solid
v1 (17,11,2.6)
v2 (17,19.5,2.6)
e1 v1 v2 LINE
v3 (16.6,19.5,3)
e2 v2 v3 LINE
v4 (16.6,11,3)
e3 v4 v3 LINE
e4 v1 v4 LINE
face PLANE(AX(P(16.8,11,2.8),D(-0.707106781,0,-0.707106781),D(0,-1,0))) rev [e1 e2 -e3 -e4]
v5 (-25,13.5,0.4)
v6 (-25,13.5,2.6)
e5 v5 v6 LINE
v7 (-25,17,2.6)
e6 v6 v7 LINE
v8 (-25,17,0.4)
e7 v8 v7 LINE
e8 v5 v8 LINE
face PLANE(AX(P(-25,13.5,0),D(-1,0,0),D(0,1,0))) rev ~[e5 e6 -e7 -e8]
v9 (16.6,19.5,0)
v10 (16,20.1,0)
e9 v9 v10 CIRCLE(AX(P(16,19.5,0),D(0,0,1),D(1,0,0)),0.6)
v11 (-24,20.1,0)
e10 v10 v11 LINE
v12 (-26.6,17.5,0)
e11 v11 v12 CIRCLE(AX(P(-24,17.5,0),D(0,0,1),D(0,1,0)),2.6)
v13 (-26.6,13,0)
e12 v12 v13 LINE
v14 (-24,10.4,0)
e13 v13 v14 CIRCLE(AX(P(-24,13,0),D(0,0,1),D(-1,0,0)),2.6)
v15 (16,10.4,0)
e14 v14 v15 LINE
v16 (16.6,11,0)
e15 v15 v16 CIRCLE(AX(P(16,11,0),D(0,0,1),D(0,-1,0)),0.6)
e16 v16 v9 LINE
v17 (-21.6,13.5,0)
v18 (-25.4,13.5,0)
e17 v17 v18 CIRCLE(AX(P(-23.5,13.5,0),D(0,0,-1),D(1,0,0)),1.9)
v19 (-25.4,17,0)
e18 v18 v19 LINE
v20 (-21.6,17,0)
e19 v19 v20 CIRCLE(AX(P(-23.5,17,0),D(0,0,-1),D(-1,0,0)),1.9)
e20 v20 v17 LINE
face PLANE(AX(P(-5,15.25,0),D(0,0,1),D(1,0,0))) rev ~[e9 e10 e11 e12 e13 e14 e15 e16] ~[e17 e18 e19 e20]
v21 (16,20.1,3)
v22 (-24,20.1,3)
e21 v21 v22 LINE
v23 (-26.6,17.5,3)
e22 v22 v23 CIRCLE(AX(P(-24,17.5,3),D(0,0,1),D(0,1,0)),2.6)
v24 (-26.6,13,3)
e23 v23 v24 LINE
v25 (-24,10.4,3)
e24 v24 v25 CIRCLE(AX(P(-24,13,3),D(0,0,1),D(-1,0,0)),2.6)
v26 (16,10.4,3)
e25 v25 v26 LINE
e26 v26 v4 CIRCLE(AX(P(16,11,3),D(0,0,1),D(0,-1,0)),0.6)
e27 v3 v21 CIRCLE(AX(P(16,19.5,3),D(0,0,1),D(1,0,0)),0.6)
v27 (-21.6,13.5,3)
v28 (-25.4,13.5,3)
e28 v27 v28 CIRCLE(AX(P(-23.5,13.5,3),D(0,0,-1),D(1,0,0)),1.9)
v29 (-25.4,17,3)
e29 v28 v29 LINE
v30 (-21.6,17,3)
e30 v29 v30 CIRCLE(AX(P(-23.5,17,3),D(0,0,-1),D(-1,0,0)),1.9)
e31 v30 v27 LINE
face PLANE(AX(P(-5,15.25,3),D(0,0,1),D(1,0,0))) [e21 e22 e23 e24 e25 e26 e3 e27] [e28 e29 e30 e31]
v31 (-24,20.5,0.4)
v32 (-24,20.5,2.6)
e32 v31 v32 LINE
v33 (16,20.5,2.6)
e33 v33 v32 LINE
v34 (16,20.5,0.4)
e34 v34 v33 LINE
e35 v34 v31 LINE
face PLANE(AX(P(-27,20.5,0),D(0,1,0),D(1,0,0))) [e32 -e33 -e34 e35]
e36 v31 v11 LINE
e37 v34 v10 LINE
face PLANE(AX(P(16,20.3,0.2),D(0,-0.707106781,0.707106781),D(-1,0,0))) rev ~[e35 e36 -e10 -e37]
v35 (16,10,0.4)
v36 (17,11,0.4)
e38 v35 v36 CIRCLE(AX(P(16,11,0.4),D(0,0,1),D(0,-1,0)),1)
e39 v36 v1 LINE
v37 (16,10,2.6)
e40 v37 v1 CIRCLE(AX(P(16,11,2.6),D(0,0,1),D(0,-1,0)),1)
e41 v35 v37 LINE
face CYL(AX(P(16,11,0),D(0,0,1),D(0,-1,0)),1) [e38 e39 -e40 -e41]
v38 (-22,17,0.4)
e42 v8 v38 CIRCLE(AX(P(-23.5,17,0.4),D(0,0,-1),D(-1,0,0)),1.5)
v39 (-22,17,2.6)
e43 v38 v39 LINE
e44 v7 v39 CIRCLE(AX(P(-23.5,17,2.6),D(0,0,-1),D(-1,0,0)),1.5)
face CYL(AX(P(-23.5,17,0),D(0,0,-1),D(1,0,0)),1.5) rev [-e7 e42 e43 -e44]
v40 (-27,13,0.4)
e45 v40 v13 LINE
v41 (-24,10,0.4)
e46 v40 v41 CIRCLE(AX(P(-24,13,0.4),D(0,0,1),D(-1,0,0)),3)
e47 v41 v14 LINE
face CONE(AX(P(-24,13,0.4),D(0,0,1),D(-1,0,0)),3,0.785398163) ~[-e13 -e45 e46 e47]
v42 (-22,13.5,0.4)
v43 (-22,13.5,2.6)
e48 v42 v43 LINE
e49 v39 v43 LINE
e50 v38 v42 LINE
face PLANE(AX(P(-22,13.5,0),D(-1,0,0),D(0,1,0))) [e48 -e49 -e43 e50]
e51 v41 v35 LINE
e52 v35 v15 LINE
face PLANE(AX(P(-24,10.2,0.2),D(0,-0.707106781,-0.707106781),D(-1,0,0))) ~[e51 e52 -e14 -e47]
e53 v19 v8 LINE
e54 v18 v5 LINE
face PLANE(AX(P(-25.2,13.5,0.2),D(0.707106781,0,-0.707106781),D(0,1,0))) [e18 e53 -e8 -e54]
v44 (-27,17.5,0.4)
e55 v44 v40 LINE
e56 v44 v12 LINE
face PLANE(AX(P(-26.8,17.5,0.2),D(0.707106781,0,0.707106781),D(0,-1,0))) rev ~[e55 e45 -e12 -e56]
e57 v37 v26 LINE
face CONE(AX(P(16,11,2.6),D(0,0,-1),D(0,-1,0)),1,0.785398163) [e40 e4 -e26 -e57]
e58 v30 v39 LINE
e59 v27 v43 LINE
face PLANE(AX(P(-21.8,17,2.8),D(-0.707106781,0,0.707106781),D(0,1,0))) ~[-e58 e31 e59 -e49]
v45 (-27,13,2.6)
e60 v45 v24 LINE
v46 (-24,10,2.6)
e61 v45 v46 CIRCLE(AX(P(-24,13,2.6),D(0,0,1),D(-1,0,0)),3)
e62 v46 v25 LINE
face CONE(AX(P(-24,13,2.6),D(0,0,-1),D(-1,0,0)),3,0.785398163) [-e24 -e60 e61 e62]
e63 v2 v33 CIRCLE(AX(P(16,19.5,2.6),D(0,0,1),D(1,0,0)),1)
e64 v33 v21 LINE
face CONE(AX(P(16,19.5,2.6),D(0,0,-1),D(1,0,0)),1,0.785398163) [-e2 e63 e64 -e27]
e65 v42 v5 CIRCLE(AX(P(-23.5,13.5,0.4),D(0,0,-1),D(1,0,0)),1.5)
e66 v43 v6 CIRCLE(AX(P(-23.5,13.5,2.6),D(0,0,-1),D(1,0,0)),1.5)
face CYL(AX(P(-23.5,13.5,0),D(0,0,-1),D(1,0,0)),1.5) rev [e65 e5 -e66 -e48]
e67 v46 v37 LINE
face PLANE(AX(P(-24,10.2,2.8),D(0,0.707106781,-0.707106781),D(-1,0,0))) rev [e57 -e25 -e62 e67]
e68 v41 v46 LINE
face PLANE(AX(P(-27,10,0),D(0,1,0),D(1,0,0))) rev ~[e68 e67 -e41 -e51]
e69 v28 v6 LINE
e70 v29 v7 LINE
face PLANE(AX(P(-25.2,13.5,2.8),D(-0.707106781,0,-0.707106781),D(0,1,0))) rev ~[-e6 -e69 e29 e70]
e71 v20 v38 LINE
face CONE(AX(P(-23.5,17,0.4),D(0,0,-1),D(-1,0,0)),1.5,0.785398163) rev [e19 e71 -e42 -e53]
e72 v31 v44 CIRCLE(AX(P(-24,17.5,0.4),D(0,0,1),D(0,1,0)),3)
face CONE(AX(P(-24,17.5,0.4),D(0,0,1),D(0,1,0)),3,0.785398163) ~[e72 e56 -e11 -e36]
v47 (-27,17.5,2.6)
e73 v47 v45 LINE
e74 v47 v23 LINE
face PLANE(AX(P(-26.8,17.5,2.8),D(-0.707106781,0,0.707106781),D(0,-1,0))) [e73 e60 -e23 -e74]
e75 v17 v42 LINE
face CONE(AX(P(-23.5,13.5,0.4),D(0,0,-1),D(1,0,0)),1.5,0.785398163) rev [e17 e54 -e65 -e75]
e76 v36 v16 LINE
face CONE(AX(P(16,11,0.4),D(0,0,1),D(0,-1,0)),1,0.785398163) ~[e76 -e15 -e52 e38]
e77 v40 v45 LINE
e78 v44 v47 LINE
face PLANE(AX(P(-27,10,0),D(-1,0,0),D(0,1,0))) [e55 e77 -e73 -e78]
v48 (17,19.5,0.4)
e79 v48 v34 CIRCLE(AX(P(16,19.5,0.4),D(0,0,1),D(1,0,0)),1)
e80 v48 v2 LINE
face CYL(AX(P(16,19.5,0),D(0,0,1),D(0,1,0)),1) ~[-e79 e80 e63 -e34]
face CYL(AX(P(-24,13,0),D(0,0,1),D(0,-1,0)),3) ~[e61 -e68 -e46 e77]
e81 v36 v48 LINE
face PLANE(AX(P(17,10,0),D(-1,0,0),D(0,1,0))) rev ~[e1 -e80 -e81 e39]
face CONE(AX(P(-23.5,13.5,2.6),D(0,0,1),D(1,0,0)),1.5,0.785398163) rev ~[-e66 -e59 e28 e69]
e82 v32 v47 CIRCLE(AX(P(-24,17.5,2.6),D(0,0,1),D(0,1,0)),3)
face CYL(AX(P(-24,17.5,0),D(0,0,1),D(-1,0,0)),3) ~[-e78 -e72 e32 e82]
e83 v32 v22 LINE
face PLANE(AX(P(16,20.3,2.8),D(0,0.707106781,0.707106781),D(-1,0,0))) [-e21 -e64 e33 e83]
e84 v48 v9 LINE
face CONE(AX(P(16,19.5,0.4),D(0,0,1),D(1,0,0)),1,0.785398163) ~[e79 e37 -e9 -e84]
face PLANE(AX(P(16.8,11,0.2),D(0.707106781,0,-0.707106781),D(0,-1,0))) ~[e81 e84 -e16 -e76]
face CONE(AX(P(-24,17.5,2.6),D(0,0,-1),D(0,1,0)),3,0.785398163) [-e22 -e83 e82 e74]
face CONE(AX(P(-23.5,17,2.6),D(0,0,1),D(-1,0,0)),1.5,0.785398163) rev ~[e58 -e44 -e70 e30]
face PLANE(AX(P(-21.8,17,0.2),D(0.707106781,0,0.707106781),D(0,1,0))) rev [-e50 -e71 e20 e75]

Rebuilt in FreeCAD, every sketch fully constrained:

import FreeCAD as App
import Part
import Sketcher

V = App.Vector


def edges_at(feature, points):
    """Names of the edges that pass closest to the given points."""
    edges = feature.Shape.Edges
    near = lambda p: min(range(len(edges)), key=lambda i: edges[i].distToShape(Part.Vertex(*p))[0])
    return sorted({f"Edge{near(p) + 1}" for p in points})


def add_polygon(sketch, points):
    """Adds a closed chain of lines whose ends are joined by coincident constraints."""
    first, n = sketch.GeometryCount, len(points)
    for a, b in zip(points, points[1:] + points[:1]):
        sketch.addGeometry(Part.LineSegment(App.Vector(*a, 0), App.Vector(*b, 0)), False)
    for i in range(n):
        sketch.addConstraint(Sketcher.Constraint("Coincident", first + i, 2, first + (i + 1) % n, 1))

doc = App.newDocument("Part")
params = doc.addObject("Spreadsheet::Sheet", "Params")
for row, (alias, value) in enumerate([
    ("sketch1_width", "3 mm"),
    ("sketch1_height", "3.5 mm"),
    ("pad1_length", "10 mm"),
    ("sketch2_diameter", "3 mm"),
    ("pad2_length", "10 mm"),
    ("sketch3_diameter", "3 mm"),
    ("pad3_length", "10 mm"),
    ("sketch4_width", "44 mm"),
    ("sketch4_height", "10.5 mm"),
    ("pad4_length", "3 mm"),
    ("fillet_radius", "1 mm"),
    ("fillet2_radius", "3 mm"),
    ("chamfer_size", "0.4 mm"),
], start=1):
    params.set(f"A{row}", alias)
    params.set(f"B{row}", "=" + value)
    params.setAlias(f"B{row}", alias)

body = doc.addObject("PartDesign::Body", "Body")

sketch1 = body.newObject("Sketcher::SketchObject", "Sketch")
sketch1.AttachmentSupport = (doc.getObject("XY_Plane"), [""])
sketch1.MapMode = "FlatFace"
add_polygon(sketch1, [(-24, 17), (-24, 13.5), (-21, 13.5), (-21, 17)])
sketch1.addConstraint([
    Sketcher.Constraint("Vertical", 0),
    Sketcher.Constraint("Horizontal", 1),
    Sketcher.Constraint("Vertical", 2),
    Sketcher.Constraint("Horizontal", 3),
    Sketcher.Constraint("DistanceX", 1, 1, 1, 2, 3.0),
    Sketcher.Constraint("DistanceY", 0, 2, 0, 1, 3.5),
    Sketcher.Constraint("DistanceX", 0, 2, -1, 1, 24.0),
    Sketcher.Constraint("DistanceY", -1, 1, 2, 2, 17.0),
])
sketch1.setExpression("Constraints[8]", "Params.sketch1_width")
sketch1.setExpression("Constraints[9]", "Params.sketch1_height")
pad1 = body.newObject("PartDesign::Pad", "Pad")
pad1.Profile = sketch1
pad1.setExpression("Length", "Params.pad1_length")
body2 = doc.addObject("PartDesign::Body", "Body001")

sketch2 = body2.newObject("Sketcher::SketchObject", "Sketch001")
sketch2.AttachmentSupport = (doc.getObject("XY_Plane001"), [""])
sketch2.MapMode = "FlatFace"
sketch2.addGeometry(Part.Circle(V(-22.5, 13.5, 0), V(0, 0, 1), 1.5), False)
sketch2.addConstraint([
    Sketcher.Constraint("Diameter", 0, 3.0),
    Sketcher.Constraint("DistanceX", 0, 3, -1, 1, 22.5),
    Sketcher.Constraint("DistanceY", -1, 1, 0, 3, 13.5),
])
sketch2.setExpression("Constraints[0]", "Params.sketch2_diameter")
pad2 = body2.newObject("PartDesign::Pad", "Pad001")
pad2.Profile = sketch2
pad2.setExpression("Length", "Params.pad2_length")
body3 = doc.addObject("PartDesign::Body", "Body002")

sketch3 = body3.newObject("Sketcher::SketchObject", "Sketch002")
sketch3.AttachmentSupport = (doc.getObject("XY_Plane002"), [""])
sketch3.MapMode = "FlatFace"
sketch3.addGeometry(Part.Circle(V(-22.5, 17, 0), V(0, 0, 1), 1.5), False)
sketch3.addConstraint([
    Sketcher.Constraint("Diameter", 0, 3.0),
    Sketcher.Constraint("DistanceY", -1, 1, 0, 3, 17.0),
    Sketcher.Constraint("DistanceX", 0, 3, -1, 1, 22.5),
])
sketch3.setExpression("Constraints[0]", "Params.sketch3_diameter")
pad3 = body3.newObject("PartDesign::Pad", "Pad002")
pad3.Profile = sketch3
pad3.setExpression("Length", "Params.pad3_length")
doc.recompute()

boolean = body3.newObject("PartDesign::Boolean", "Boolean")
boolean.Type = "Fuse"
boolean.addObjects([body])
doc.recompute()

boolean2 = body3.newObject("PartDesign::Boolean", "Boolean001")
boolean2.Type = "Fuse"
boolean2.addObjects([body2])
body4 = doc.addObject("PartDesign::Body", "Body003")
doc.recompute()

body3.Placement = App.Placement(V(-1, 0, 0), App.Rotation(V(0, 0, 1), 0))
boolean3 = body4.newObject("PartDesign::Boolean", "Boolean002")
boolean3.Type = "Fuse"
boolean3.addObjects([body3])
body5 = doc.addObject("PartDesign::Body", "Body004")

sketch4 = body5.newObject("Sketcher::SketchObject", "Sketch003")
sketch4.AttachmentSupport = (doc.getObject("XY_Plane004"), [""])
sketch4.MapMode = "FlatFace"
add_polygon(sketch4, [(-27, 20), (-27, 10), (17, 10), (17, 20)])
sketch4.addConstraint([
    Sketcher.Constraint("Vertical", 0),
    Sketcher.Constraint("Horizontal", 1),
    Sketcher.Constraint("Vertical", 2),
    Sketcher.Constraint("Horizontal", 3),
    Sketcher.Constraint("DistanceX", 1, 1, 1, 2, 44.0),
    Sketcher.Constraint("DistanceY", 0, 2, 0, 1, 10.5),
    Sketcher.Constraint("DistanceX", 0, 2, -1, 1, 27.0),
    Sketcher.Constraint("DistanceY", -1, 1, 0, 2, 10.0),
])
sketch4.setExpression("Constraints[8]", "Params.sketch4_width")
sketch4.setExpression("Constraints[9]", "Params.sketch4_height")
pad4 = body5.newObject("PartDesign::Pad", "Pad003")
pad4.Profile = sketch4
pad4.setExpression("Length", "Params.pad4_length")
doc.recompute()

boolean4 = body5.newObject("PartDesign::Boolean", "Boolean003")
boolean4.Type = "Cut"
boolean4.addObjects([body4])
doc.recompute()

fillet = body5.newObject("PartDesign::Fillet", "Fillet")
fillet.Base = (boolean4, edges_at(boolean4, [(17, 10, 1.5), (17, 20.5, 1.5)]))
fillet.setExpression("Radius", "Params.fillet_radius")
doc.recompute()

fillet2 = body5.newObject("PartDesign::Fillet", "Fillet001")
fillet2.Base = (fillet, edges_at(fillet, [(-27, 10, 1.5), (-27, 20.5, 1.5)]))
fillet2.setExpression("Radius", "Params.fillet2_radius")
doc.recompute()

chamfer = body5.newObject("PartDesign::Chamfer", "Chamfer")
chamfer.Base = (fillet2, edges_at(fillet2, [
    (-4, 10, 0),
    (-4, 10, 3),
    (-4, 20.5, 0),
    (-26.121, 19.621, 0),
    (16.707, 20.207, 0),
    (-27, 15.25, 0),
    (17, 15.25, 0),
    (-26.121, 10.879, 0),
    (16.707, 10.293, 0),
    (-25, 15.25, 0),
    (-23.5, 12, 0),
    (-22, 15.25, 0),
    (-23.5, 18.5, 0),
    (-26.121, 10.879, 3),
    (16.707, 10.293, 3),
    (-4, 20.5, 3),
    (-26.121, 19.621, 3),
    (16.707, 20.207, 3),
    (-27, 15.25, 3),
    (17, 15.25, 3),
    (-22, 15.25, 3),
    (-23.5, 18.5, 3),
    (-25, 15.25, 3),
    (-23.5, 12, 3),
]))
chamfer.setExpression("Size", "Params.chamfer_size")

doc.recompute()
